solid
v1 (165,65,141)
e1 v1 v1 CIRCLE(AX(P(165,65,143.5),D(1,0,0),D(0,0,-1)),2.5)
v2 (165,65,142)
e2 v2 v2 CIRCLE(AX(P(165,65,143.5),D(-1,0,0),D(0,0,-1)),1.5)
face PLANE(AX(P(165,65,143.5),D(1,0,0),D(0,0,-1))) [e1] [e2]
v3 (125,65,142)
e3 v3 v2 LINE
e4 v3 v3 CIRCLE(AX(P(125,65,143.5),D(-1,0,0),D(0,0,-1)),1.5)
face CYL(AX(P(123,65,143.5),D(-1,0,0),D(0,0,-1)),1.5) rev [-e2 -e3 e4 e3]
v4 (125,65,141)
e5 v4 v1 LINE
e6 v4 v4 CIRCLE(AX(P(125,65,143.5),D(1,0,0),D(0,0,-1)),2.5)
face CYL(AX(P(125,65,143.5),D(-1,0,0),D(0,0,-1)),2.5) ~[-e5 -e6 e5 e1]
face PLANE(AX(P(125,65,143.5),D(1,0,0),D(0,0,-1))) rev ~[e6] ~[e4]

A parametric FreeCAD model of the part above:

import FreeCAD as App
import Part
import Sketcher

V = App.Vector
Q = App.Units.Quantity

doc = App.newDocument("Part")
params = doc.addObject("Spreadsheet::Sheet", "Params")
for row, (alias, value) in enumerate([
    ("sketch1_diameter", "3 mm"),
    ("pad1_length", "44 mm"),
    ("sketch2_diameter", "5 mm"),
    ("pad2_length", "40 mm"),
], start=1):
    params.set(f"A{row}", alias)
    params.set(f"B{row}", "=" + value)
    params.setAlias(f"B{row}", alias)

body = doc.addObject("PartDesign::Body", "Body")

# Sketch on XY plane
sketch1 = doc.addObject("Sketcher::SketchObject", "Sketch")
body.addObject(sketch1)
sketch1.AttachmentSupport = (doc.XY_Plane, [""])
sketch1.MapMode = "FlatFace"
sketch1.addGeometry(Part.Circle(V(0, 0, 0), V(0, 0, 1), 1.5), False)
sketch1.addConstraint(Sketcher.Constraint("Coincident", 0, 3, -1, 1))
sketch1.addConstraint(Sketcher.Constraint("Diameter", 0, Q("3 mm")))
sketch1.setExpression("Constraints[1]", "Params.sketch1_diameter")
pad1 = doc.addObject("PartDesign::Pad", "Pad")
body.addObject(pad1)
pad1.Profile = sketch1
pad1.setExpression("Length", "Params.pad1_length")
body2 = doc.addObject("PartDesign::Body", "Body001")
doc.recompute()

body.Placement = App.Placement(V(0, 0, 0), App.Rotation(V(0, 1, 0), 90))
boolean = doc.addObject("PartDesign::Boolean", "Boolean")
body2.addObject(boolean)
boolean.Type = "Fuse"
boolean.addObjects([body])
body3 = doc.addObject("PartDesign::Body", "Body002")
doc.recompute()

body2.Placement = App.Placement(V(-2, 0, 0), App.Rotation(V(0, 0, 1), 0))
boolean2 = doc.addObject("PartDesign::Boolean", "Boolean001")
body3.addObject(boolean2)
boolean2.Type = "Fuse"
boolean2.addObjects([body2])
body4 = doc.addObject("PartDesign::Body", "Body003")

# Sketch on XY plane
sketch2 = doc.addObject("Sketcher::SketchObject", "Sketch001")
body4.addObject(sketch2)
sketch2.AttachmentSupport = (doc.getObject("XY_Plane003"), [""])
sketch2.MapMode = "FlatFace"
sketch2.addGeometry(Part.Circle(V(0, 0, 0), V(0, 0, 1), 2.5), False)
sketch2.addConstraint(Sketcher.Constraint("Coincident", 0, 3, -1, 1))
sketch2.addConstraint(Sketcher.Constraint("Diameter", 0, Q("5 mm")))
sketch2.setExpression("Constraints[1]", "Params.sketch2_diameter")
pad2 = doc.addObject("PartDesign::Pad", "Pad001")
body4.addObject(pad2)
pad2.Profile = sketch2
pad2.setExpression("Length", "Params.pad2_length")
body5 = doc.addObject("PartDesign::Body", "Body004")
doc.recompute()

body4.Placement = App.Placement(V(0, 0, 0), App.Rotation(V(0, 1, 0), 90))
boolean3 = doc.addObject("PartDesign::Boolean", "Boolean002")
body5.addObject(boolean3)
boolean3.Type = "Fuse"
boolean3.addObjects([body4])
doc.recompute()

boolean4 = doc.addObject("PartDesign::Boolean", "Boolean003")
body5.addObject(boolean4)
boolean4.Type = "Cut"
boolean4.addObjects([body3])
body6 = doc.addObject("PartDesign::Body", "Body005")
doc.recompute()

body5.Placement = App.Placement(V(125, 65, 143.5), App.Rotation(V(0, 0, 1), 0))
boolean5 = doc.addObject("PartDesign::Boolean", "Boolean004")
body6.addObject(boolean5)
boolean5.Type = "Fuse"
boolean5.addObjects([body5])

doc.recompute()
